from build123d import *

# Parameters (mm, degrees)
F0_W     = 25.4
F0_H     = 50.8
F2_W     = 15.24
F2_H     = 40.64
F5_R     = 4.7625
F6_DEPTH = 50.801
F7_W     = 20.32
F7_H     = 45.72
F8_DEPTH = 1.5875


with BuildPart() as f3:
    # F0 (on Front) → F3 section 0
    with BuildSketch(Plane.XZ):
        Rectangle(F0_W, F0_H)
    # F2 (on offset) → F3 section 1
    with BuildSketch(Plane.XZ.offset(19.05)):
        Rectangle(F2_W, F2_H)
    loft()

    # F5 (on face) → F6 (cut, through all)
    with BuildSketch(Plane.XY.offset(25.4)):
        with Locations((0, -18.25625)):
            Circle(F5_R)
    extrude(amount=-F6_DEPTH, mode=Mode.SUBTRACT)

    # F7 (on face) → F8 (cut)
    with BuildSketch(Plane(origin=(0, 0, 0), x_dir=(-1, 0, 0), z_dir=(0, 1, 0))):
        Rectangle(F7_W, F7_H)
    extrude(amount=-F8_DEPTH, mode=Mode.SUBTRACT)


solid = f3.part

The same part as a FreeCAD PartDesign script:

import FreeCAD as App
import Part
import Sketcher
from FreeCAD import Vector
Q = App.Units.Quantity

doc = App.newDocument("Part")
body = doc.addObject("PartDesign::Body", "Body")

# Sketch on XZ plane
sketch1 = body.newObject("Sketcher::SketchObject", "Sketch")
sketch1.AttachmentSupport = (doc.getObject("XZ_Plane"), [""])
sketch1.MapMode = "FlatFace"
sketch1.addGeometry([
    Part.LineSegment(Vector(-12.7, 25.4, 0), Vector(-12.7, -25.4, 0)),
    Part.LineSegment(Vector(-12.7, -25.4, 0), Vector(12.7, -25.4, 0)),
    Part.LineSegment(Vector(12.7, -25.4, 0), Vector(12.7, 25.4, 0)),
    Part.LineSegment(Vector(12.7, 25.4, 0), Vector(-12.7, 25.4, 0)),
], False)
sketch1.addConstraint([
    Sketcher.Constraint("Coincident", 0, 2, 1, 1),
    Sketcher.Constraint("Coincident", 1, 2, 2, 1),
    Sketcher.Constraint("Coincident", 2, 2, 3, 1),
    Sketcher.Constraint("Coincident", 3, 2, 0, 1),
    Sketcher.Constraint("Vertical", 0),
    Sketcher.Constraint("Horizontal", 1),
    Sketcher.Constraint("Vertical", 2),
    Sketcher.Constraint("Horizontal", 3),
    Sketcher.Constraint("Symmetric", 0, 2, 2, 2, -1, 1),
    Sketcher.Constraint("DistanceX", 1, 1, 1, 2, Q("1 in")),
    Sketcher.Constraint("DistanceY", 0, 2, 0, 1, Q("2 in")),
])

# Sketch on XZ plane
sketch2 = body.newObject("Sketcher::SketchObject", "Sketch001")
sketch2.AttachmentSupport = (doc.getObject("XZ_Plane"), [""])
sketch2.MapMode = "FlatFace"
sketch2.AttachmentOffset = App.Placement(Vector(0, 0, 0.75 * 25.4), App.Rotation())
sketch2.addGeometry([
    Part.LineSegment(Vector(-7.62, 20.32, 0), Vector(-7.62, -20.32, 0)),
    Part.LineSegment(Vector(-7.62, -20.32, 0), Vector(7.62, -20.32, 0)),
    Part.LineSegment(Vector(7.62, -20.32, 0), Vector(7.62, 20.32, 0)),
    Part.LineSegment(Vector(7.62, 20.32, 0), Vector(-7.62, 20.32, 0)),
], False)
sketch2.addConstraint([
    Sketcher.Constraint("Coincident", 0, 2, 1, 1),
    Sketcher.Constraint("Coincident", 1, 2, 2, 1),
    Sketcher.Constraint("Coincident", 2, 2, 3, 1),
    Sketcher.Constraint("Coincident", 3, 2, 0, 1),
    Sketcher.Constraint("Vertical", 0),
    Sketcher.Constraint("Horizontal", 1),
    Sketcher.Constraint("Vertical", 2),
    Sketcher.Constraint("Horizontal", 3),
    Sketcher.Constraint("Symmetric", 0, 2, 2, 2, -1, 1),
    Sketcher.Constraint("DistanceX", 1, 1, 1, 2, Q("0.6 in")),
    Sketcher.Constraint("DistanceY", 0, 2, 0, 1, Q("1.6 in")),
])

additiveloft = body.newObject("PartDesign::AdditiveLoft", "AdditiveLoft")
additiveloft.Profile = sketch1
additiveloft.Sections = [sketch2]

# Sketch on XY plane
sketch3 = body.newObject("Sketcher::SketchObject", "Sketch002")
sketch3.AttachmentSupport = (doc.getObject("XY_Plane"), [""])
sketch3.MapMode = "FlatFace"
sketch3.AttachmentOffset = App.Placement(Vector(0, 0, 1 * 25.4), App.Rotation())
sketch3.addGeometry(Part.Circle(Vector(0, -18.25625, 0), Vector(0, 0, 1), 4.7625), False)
sketch3.addConstraint([
    Sketcher.Constraint("PointOnObject", 0, 3, -2),
    Sketcher.Constraint("Diameter", 0, Q("0.375 in")),
    Sketcher.Constraint("DistanceY", 0, 3, -1, 1, Q("0.71875 in")),
])
pocket1 = body.newObject("PartDesign::Pocket", "Pocket")
pocket1.Profile = sketch3
pocket1.Type = "ThroughAll"

# Sketch on XZ plane
sketch4 = body.newObject("Sketcher::SketchObject", "Sketch003")
sketch4.AttachmentSupport = (doc.getObject("XZ_Plane"), [""])
sketch4.MapMode = "FlatFace"
sketch4.addGeometry([
    Part.LineSegment(Vector(10.16, 22.86, 0), Vector(10.16, -22.86, 0)),
    Part.LineSegment(Vector(10.16, -22.86, 0), Vector(-10.16, -22.86, 0)),
    Part.LineSegment(Vector(-10.16, -22.86, 0), Vector(-10.16, 22.86, 0)),
    Part.LineSegment(Vector(-10.16, 22.86, 0), Vector(10.16, 22.86, 0)),
], False)
sketch4.addConstraint([
    Sketcher.Constraint("Coincident", 0, 2, 1, 1),
    Sketcher.Constraint("Coincident", 1, 2, 2, 1),
    Sketcher.Constraint("Coincident", 2, 2, 3, 1),
    Sketcher.Constraint("Coincident", 3, 2, 0, 1),
    Sketcher.Constraint("Vertical", 0),
    Sketcher.Constraint("Horizontal", 1),
    Sketcher.Constraint("Vertical", 2),
    Sketcher.Constraint("Horizontal", 3),
    Sketcher.Constraint("Symmetric", 0, 2, 2, 2, -1, 1),
    Sketcher.Constraint("DistanceX", 1, 2, 1, 1, Q("0.8 in")),
    Sketcher.Constraint("DistanceY", 0, 2, 0, 1, Q("1.8 in")),
])
pocket2 = body.newObject("PartDesign::Pocket", "Pocket001")
pocket2.Profile = sketch4
pocket2.Length = Q("0.0625 in")
pocket2.Reversed = True

doc.recompute()
